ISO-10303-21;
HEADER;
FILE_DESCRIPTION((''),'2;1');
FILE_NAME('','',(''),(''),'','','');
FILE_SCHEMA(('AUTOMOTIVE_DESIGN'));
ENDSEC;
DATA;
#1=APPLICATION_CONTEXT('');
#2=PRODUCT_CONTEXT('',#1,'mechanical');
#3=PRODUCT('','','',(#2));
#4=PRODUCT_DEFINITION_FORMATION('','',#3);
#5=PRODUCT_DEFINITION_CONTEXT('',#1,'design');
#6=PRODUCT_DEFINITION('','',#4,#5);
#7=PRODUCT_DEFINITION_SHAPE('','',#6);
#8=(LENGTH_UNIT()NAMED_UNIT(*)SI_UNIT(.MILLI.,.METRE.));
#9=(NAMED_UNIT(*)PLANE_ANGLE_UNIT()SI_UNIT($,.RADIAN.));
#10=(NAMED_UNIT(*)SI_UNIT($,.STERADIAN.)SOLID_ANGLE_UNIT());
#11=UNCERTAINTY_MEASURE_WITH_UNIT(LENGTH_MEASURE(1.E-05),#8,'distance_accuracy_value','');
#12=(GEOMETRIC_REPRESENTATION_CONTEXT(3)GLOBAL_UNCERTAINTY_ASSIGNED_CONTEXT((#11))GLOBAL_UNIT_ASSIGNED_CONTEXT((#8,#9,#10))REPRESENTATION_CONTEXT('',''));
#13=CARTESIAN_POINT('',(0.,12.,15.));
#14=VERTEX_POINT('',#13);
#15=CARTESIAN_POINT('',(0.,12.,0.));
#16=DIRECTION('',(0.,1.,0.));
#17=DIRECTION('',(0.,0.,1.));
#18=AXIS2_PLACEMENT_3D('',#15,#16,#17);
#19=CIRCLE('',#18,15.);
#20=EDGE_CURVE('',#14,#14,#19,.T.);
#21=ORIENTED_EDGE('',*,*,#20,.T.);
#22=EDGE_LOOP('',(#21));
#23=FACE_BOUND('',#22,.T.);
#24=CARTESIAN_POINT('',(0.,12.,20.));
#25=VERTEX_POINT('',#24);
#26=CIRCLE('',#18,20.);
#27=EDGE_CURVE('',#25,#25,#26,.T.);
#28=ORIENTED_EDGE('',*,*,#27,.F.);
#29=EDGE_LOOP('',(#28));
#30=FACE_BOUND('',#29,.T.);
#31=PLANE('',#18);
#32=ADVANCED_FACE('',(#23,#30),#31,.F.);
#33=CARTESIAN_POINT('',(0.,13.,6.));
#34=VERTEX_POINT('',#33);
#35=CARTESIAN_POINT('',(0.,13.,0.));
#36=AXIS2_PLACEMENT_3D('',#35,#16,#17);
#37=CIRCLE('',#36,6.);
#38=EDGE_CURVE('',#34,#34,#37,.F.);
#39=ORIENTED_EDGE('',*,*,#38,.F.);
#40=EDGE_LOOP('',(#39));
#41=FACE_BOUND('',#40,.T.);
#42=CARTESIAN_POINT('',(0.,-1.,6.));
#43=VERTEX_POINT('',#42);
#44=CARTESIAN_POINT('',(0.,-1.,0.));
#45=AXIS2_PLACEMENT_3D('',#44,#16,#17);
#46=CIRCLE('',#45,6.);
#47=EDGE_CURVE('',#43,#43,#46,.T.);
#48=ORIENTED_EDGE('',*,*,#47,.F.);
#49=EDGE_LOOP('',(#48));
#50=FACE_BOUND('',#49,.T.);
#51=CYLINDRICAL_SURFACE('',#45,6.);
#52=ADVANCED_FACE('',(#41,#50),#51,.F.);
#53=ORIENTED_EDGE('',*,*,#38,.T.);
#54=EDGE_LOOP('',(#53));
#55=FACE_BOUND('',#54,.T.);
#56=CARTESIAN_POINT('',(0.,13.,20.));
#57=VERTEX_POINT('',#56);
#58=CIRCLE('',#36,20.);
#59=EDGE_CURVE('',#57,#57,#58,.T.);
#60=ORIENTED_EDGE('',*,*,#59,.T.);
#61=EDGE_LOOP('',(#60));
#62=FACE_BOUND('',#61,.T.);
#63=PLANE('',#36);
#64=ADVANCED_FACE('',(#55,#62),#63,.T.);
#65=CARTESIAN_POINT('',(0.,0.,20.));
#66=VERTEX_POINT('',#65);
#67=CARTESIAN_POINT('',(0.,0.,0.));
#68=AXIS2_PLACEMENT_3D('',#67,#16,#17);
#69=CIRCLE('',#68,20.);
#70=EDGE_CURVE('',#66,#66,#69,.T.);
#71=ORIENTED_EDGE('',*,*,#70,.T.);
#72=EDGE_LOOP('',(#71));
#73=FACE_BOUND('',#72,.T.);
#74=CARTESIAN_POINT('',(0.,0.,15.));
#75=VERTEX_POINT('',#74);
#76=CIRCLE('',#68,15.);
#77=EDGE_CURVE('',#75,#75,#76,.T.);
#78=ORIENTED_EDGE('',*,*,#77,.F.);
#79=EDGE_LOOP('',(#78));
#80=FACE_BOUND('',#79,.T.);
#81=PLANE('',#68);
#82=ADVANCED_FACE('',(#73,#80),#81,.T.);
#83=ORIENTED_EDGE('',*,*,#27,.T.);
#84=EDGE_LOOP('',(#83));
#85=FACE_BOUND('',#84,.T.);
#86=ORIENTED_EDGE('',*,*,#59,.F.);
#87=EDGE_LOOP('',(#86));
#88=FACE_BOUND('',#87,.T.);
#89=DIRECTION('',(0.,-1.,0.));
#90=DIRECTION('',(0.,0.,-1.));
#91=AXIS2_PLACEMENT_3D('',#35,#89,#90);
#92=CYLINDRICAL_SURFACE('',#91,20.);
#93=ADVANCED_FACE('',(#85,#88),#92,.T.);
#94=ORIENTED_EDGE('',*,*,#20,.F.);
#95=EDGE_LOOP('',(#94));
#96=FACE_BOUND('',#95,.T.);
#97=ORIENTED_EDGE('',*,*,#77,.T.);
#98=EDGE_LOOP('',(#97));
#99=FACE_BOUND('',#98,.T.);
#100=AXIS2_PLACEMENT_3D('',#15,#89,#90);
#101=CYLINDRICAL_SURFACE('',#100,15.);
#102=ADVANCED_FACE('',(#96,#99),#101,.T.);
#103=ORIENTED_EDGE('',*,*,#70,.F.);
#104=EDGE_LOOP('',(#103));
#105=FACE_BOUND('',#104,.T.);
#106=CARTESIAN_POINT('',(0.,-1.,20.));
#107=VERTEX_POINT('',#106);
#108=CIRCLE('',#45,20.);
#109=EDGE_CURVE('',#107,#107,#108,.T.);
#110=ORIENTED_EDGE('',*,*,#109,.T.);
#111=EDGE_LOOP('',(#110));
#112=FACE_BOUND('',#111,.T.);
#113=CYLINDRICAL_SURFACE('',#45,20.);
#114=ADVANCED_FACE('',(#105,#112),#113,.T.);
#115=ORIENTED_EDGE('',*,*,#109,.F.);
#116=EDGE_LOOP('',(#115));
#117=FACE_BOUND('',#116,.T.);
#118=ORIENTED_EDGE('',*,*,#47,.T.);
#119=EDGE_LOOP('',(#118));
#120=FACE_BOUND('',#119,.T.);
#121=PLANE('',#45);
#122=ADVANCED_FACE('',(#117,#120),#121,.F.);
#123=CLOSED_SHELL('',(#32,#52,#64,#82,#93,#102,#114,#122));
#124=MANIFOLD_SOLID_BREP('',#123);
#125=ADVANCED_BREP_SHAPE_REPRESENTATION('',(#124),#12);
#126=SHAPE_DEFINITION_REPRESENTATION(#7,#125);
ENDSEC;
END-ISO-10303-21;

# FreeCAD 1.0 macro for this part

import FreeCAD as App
import Part
import Sketcher
from FreeCAD import Vector
Q = App.Units.Quantity

doc = App.newDocument("Part")
body = doc.addObject("PartDesign::Body", "Body")

# Sketch on XZ plane
sketch1 = doc.addObject("Sketcher::SketchObject", "Sketch")
body.addObject(sketch1)
sketch1.AttachmentSupport = (doc.XZ_Plane, [""])
sketch1.MapMode = "FlatFace"
sketch1.addGeometry(Part.Circle(Vector(0, 0, 0), Vector(0, 0, 1), 20), False)
sketch1.addGeometry(Part.Circle(Vector(0, 0, 0), Vector(0, 0, 1), 6), False)
sketch1.addConstraint(Sketcher.Constraint("Coincident", 0, 3, -1, 1))
sketch1.addConstraint(Sketcher.Constraint("Coincident", 1, 3, -1, 1))
sketch1.addConstraint(Sketcher.Constraint("Diameter", 0, Q("40 mm")))
sketch1.addConstraint(Sketcher.Constraint("Diameter", 1, Q("12 mm")))
pad1 = doc.addObject("PartDesign::Pad", "Pad")
body.addObject(pad1)
pad1.Profile = sketch1
pad1.Length = 1

# Sketch on XZ plane
sketch2 = doc.addObject("Sketcher::SketchObject", "Sketch001")
body.addObject(sketch2)
sketch2.AttachmentSupport = (doc.XZ_Plane, [""])
sketch2.MapMode = "FlatFace"
sketch2.addGeometry(Part.Circle(Vector(0, 0, 0), Vector(0, 0, 1), 15), False)
sketch2.addGeometry(Part.Circle(Vector(0, 0, 0), Vector(0, 0, 1), 6), False)
sketch2.addConstraint(Sketcher.Constraint("Coincident", 0, 3, -1, 1))
sketch2.addConstraint(Sketcher.Constraint("Coincident", 1, 3, -1, 1))
sketch2.addConstraint(Sketcher.Constraint("Diameter", 0, Q("30 mm")))
sketch2.addConstraint(Sketcher.Constraint("Diameter", 1, Q("12 mm")))
pad2 = doc.addObject("PartDesign::Pad", "Pad001")
body.addObject(pad2)
pad2.Profile = sketch2
pad2.Length = 12
pad2.Reversed = True

# Sketch on XZ plane
sketch3 = doc.addObject("Sketcher::SketchObject", "Sketch002")
body.addObject(sketch3)
sketch3.AttachmentSupport = (doc.XZ_Plane, [""])
sketch3.MapMode = "FlatFace"
sketch3.AttachmentOffset = App.Placement(Vector(0, 0, -12), App.Rotation())
sketch3.addGeometry(Part.Circle(Vector(0, 0, 0), Vector(0, 0, 1), 20), False)
sketch3.addGeometry(Part.Circle(Vector(0, 0, 0), Vector(0, 0, 1), 6), False)
sketch3.addConstraint(Sketcher.Constraint("Coincident", 0, 3, -1, 1))
sketch3.addConstraint(Sketcher.Constraint("Coincident", 1, 3, -1, 1))
sketch3.addConstraint(Sketcher.Constraint("Diameter", 0, Q("40 mm")))
sketch3.addConstraint(Sketcher.Constraint("Diameter", 1, Q("12 mm")))
pad3 = doc.addObject("PartDesign::Pad", "Pad002")
body.addObject(pad3)
pad3.Profile = sketch3
pad3.Length = 1
pad3.Reversed = True

doc.recompute()
